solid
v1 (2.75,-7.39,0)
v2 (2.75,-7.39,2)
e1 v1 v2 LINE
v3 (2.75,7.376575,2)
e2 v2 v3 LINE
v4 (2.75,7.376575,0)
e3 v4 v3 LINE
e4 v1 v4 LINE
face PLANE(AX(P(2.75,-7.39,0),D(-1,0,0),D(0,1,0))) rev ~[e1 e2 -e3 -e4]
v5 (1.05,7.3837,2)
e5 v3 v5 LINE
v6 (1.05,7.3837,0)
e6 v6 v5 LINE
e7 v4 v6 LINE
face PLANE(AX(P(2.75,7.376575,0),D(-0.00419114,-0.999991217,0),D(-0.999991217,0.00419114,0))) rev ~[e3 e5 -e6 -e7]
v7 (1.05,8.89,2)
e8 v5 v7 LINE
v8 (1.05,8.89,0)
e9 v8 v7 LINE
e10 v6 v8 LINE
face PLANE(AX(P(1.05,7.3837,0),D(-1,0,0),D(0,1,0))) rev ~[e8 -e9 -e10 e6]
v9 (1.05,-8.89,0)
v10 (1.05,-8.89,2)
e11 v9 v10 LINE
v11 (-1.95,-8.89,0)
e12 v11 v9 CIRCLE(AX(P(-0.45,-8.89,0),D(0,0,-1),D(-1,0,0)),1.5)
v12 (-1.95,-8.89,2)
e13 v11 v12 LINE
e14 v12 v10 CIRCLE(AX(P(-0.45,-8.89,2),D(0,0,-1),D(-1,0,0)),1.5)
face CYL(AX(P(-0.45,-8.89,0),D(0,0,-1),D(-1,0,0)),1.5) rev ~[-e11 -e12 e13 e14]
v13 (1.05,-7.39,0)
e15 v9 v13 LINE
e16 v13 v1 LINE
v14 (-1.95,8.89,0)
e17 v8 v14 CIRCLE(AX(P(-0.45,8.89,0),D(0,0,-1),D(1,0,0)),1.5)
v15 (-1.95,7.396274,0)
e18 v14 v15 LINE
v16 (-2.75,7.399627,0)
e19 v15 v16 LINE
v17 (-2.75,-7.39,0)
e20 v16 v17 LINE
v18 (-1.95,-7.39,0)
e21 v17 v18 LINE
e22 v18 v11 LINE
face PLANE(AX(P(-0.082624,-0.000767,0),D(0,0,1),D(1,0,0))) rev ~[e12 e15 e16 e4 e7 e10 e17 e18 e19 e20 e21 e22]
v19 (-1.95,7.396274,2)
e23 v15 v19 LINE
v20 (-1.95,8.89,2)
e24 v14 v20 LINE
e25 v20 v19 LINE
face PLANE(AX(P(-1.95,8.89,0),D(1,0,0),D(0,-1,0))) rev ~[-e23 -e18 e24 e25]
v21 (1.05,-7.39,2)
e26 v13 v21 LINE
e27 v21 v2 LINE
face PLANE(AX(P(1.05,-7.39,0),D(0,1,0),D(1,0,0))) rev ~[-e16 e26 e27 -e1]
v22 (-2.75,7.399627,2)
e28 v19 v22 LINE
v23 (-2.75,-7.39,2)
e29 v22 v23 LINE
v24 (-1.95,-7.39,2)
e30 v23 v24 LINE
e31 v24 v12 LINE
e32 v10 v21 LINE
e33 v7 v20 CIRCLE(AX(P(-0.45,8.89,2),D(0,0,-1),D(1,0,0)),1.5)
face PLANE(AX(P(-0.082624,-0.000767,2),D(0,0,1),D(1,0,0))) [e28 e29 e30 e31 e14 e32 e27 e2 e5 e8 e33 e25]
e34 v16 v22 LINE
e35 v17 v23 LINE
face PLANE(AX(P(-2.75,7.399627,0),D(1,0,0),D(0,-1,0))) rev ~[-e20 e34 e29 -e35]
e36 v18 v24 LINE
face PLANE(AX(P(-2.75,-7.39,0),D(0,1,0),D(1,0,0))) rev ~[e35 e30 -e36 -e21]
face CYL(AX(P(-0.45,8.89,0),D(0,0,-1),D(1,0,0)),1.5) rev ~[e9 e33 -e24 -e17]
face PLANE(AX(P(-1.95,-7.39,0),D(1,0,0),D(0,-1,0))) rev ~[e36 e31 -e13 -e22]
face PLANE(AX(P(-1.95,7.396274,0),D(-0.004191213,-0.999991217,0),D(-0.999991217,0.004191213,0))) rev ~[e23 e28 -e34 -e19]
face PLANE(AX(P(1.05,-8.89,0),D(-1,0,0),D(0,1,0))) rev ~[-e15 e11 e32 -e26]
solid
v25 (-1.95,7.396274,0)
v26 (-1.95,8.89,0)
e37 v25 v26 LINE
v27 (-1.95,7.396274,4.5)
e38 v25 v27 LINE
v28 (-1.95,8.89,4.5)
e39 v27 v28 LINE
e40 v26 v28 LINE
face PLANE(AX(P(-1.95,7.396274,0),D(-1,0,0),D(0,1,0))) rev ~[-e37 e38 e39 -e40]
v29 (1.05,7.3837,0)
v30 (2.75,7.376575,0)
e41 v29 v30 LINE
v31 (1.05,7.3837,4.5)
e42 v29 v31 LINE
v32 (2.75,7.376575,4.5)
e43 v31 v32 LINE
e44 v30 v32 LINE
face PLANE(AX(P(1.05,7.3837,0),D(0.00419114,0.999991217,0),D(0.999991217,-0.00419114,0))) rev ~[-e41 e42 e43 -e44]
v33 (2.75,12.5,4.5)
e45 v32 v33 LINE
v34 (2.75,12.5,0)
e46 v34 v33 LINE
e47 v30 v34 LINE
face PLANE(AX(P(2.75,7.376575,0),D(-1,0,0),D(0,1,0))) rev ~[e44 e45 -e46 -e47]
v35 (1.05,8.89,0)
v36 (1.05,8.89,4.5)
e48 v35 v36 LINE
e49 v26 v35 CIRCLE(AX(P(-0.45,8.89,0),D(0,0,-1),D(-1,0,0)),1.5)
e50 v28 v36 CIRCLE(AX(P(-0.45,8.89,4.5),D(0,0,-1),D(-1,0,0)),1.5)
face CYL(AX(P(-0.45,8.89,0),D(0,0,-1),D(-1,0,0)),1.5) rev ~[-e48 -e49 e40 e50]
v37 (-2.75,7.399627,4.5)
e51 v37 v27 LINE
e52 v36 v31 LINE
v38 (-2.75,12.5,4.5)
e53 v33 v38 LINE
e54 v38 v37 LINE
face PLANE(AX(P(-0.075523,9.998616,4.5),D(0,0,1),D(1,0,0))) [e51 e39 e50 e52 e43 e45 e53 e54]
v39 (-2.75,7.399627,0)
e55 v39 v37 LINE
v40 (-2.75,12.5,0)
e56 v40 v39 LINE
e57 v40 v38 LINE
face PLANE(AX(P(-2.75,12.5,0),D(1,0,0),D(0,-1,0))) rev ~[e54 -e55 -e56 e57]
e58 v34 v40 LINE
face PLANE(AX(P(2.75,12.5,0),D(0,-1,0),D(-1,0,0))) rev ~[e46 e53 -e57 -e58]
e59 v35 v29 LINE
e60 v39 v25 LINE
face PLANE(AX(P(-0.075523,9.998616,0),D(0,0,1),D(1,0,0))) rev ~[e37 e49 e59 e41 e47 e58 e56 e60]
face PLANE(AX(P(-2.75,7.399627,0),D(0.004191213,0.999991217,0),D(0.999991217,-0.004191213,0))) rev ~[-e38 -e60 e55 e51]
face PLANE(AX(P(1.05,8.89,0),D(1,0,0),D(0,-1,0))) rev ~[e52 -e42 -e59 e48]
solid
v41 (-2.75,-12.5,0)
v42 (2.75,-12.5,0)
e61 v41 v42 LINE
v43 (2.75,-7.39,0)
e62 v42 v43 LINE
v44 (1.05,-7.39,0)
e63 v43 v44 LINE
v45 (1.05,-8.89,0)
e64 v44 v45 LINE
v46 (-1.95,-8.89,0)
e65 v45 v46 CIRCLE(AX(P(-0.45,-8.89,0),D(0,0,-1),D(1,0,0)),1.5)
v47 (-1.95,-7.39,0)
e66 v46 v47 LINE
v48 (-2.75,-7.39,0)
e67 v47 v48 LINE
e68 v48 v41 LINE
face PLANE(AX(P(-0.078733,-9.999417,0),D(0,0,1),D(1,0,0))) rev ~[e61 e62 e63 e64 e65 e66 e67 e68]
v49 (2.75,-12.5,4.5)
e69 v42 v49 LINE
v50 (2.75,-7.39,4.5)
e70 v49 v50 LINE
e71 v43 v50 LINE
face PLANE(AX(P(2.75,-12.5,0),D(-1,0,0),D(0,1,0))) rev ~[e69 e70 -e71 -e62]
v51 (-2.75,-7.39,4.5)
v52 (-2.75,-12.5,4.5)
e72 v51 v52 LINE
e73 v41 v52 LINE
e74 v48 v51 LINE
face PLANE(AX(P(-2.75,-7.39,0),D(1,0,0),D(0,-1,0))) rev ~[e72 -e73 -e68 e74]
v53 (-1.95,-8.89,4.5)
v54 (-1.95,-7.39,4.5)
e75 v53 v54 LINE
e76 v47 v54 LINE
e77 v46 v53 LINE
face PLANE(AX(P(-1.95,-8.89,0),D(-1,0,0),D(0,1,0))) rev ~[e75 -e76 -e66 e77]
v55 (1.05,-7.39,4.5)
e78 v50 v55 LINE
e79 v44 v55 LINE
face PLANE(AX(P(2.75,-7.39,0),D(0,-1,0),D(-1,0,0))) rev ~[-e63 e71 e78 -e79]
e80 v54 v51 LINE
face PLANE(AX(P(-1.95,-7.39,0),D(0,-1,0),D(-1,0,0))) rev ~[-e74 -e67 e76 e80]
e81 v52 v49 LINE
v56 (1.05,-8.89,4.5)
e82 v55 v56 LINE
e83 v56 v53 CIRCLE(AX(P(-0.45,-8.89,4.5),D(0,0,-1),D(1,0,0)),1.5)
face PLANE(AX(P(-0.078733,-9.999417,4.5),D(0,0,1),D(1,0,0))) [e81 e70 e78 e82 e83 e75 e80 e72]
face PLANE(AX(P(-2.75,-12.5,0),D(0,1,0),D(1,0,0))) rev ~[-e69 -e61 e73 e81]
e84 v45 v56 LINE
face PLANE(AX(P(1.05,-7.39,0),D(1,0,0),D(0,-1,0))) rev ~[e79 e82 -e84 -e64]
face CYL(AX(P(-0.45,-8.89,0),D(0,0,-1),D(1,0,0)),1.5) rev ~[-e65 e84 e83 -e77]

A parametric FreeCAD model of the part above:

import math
import FreeCAD as App
import Part
import Sketcher
Q = App.Units.Quantity

doc = App.newDocument("Part")
body = doc.addObject("PartDesign::Body", "Body")
body.AllowCompound = True

# Sketch on XY plane
sketch1 = body.newObject("Sketcher::SketchObject", "Sketch")
sketch1.AttachmentSupport = (doc.getObject("XY_Plane"), [""])
sketch1.MapMode = "FlatFace"
sketch1.addGeometry([
    Part.LineSegment(App.Vector(-2.8, -12.5, 0), App.Vector(2.8, -12.5, 0)),  # 0
    Part.LineSegment(App.Vector(2.8, -12.5, 0), App.Vector(2.8, -7.4, 0)),  # 1
    Part.LineSegment(App.Vector(2.8, -7.4, 0), App.Vector(1.1, -7.4, 0)),  # 2
    Part.LineSegment(App.Vector(1.1, -7.4, 0), App.Vector(1.1, -8.9, 0)),  # 3
    Part.ArcOfCircle(Part.Circle(App.Vector(-0.5, -8.9, 0), App.Vector(0, 0, 1), 1.5), math.radians(180), math.radians(360)),  # 4
    Part.LineSegment(App.Vector(-1.9, -8.9, 0), App.Vector(-1.9, -7.4, 0)),  # 5
    Part.LineSegment(App.Vector(-1.9, -7.4, 0), App.Vector(-2.8, -7.4, 0)),  # 6
    Part.LineSegment(App.Vector(-2.8, -7.4, 0), App.Vector(-2.8, -12.5, 0)),  # 7
    Part.LineSegment(App.Vector(1.1, 7.4, 0), App.Vector(2.8, 7.4, 0)),  # 8
    Part.LineSegment(App.Vector(2.8, 7.4, 0), App.Vector(2.8, 12.5, 0)),  # 9
    Part.LineSegment(App.Vector(2.8, 12.5, 0), App.Vector(-2.8, 12.5, 0)),  # 10
    Part.LineSegment(App.Vector(-2.8, 12.5, 0), App.Vector(-2.8, 7.4, 0)),  # 11
    Part.LineSegment(App.Vector(-2.8, 7.4, 0), App.Vector(-1.9, 7.4, 0)),  # 12
    Part.LineSegment(App.Vector(-1.9, 7.4, 0), App.Vector(-1.9, 8.9, 0)),  # 13
    Part.ArcOfCircle(Part.Circle(App.Vector(-0.5, 8.9, 0), App.Vector(0, 0, 1), 1.5), math.radians(0), math.radians(180)),  # 14
    Part.LineSegment(App.Vector(1.1, 8.9, 0), App.Vector(1.1, 7.4, 0)),  # 15
], False)
sketch1.addConstraint([
    Sketcher.Constraint("Coincident", 0, 2, 1, 1),
    Sketcher.Constraint("Coincident", 1, 2, 2, 1),
    Sketcher.Constraint("Coincident", 2, 2, 3, 1),
    Sketcher.Constraint("Tangent", 3, 2, 4, 2),
    Sketcher.Constraint("Tangent", 4, 1, 5, 1),
    Sketcher.Constraint("Coincident", 5, 2, 6, 1),
    Sketcher.Constraint("Coincident", 6, 2, 7, 1),
    Sketcher.Constraint("Coincident", 7, 2, 0, 1),
    Sketcher.Constraint("Coincident", 8, 2, 9, 1),
    Sketcher.Constraint("Coincident", 9, 2, 10, 1),
    Sketcher.Constraint("Coincident", 10, 2, 11, 1),
    Sketcher.Constraint("Coincident", 11, 2, 12, 1),
    Sketcher.Constraint("Coincident", 12, 2, 13, 1),
    Sketcher.Constraint("Tangent", 13, 2, 14, 2),
    Sketcher.Constraint("Tangent", 14, 1, 15, 1),
    Sketcher.Constraint("Coincident", 15, 2, 8, 1),
    Sketcher.Constraint("Horizontal", 0),
    Sketcher.Constraint("Vertical", 1),
    Sketcher.Constraint("Horizontal", 2),
    Sketcher.Constraint("Vertical", 3),
    Sketcher.Constraint("Vertical", 5),
    Sketcher.Constraint("Horizontal", 6),
    Sketcher.Constraint("Vertical", 7),
    Sketcher.Constraint("Vertical", 9),
    Sketcher.Constraint("Horizontal", 10),
    Sketcher.Constraint("Vertical", 11),
    Sketcher.Constraint("Vertical", 13),
    Sketcher.Constraint("Vertical", 15),
    Sketcher.Constraint("Equal", 4, 14),
    Sketcher.Constraint("Symmetric", 7, 2, 9, 2, -1, 1),
    Sketcher.Constraint("Symmetric", 1, 2, 6, 2, -2),
    Sketcher.Constraint("Symmetric", 4, 3, 14, 3, -1),
    Sketcher.Constraint("Parallel", 8, 12),
    Sketcher.Constraint("Vertical", 7, 2, 10, 2),
    Sketcher.Constraint("Radius", 4, Q("1.5 mm")),
    Sketcher.Constraint("DistanceX", 0, 1, 0, 2, Q("5.5 mm")),
    Sketcher.Constraint("DistanceX", 2, 2, 2, 1, Q("1.7 mm")),
    Sketcher.Constraint("DistanceY", 3, 2, 3, 1, Q("1.5 mm")),
    Sketcher.Constraint("DistanceY", 1, 1, 1, 2, Q("5.11 mm")),
    Sketcher.Constraint("DistanceY", 0, 2, -1, 1, Q("12.5 mm")),
    Sketcher.Constraint("DistanceY", 15, 2, 15, 1, Q("1.5063 mm")),
    Sketcher.Constraint("DistanceY", 8, 2, 12, 2, Q("0.019699 mm")),
    Sketcher.Constraint("DistanceY", 9, 1, 9, 2, Q("5.123425 mm")),
])
pad1 = body.newObject("PartDesign::Pad", "Pad")
pad1.Profile = sketch1
pad1.Length = 4.5
body2 = doc.addObject("PartDesign::Body", "Body001")

# Sketch on XY plane
sketch2 = body2.newObject("Sketcher::SketchObject", "Sketch001")
sketch2.AttachmentSupport = (doc.getObject("XY_Plane001"), [""])
sketch2.MapMode = "FlatFace"
sketch2.addGeometry([
    Part.LineSegment(App.Vector(1.1, -7.4, 0), App.Vector(2.8, -7.4, 0)),  # 0
    Part.LineSegment(App.Vector(2.8, -7.4, 0), App.Vector(2.8, 7.4, 0)),  # 1
    Part.LineSegment(App.Vector(2.8, 7.4, 0), App.Vector(1.1, 7.4, 0)),  # 2
    Part.LineSegment(App.Vector(1.1, 7.4, 0), App.Vector(1.1, 8.9, 0)),  # 3
    Part.ArcOfCircle(Part.Circle(App.Vector(-0.5, 8.9, 0), App.Vector(0, 0, 1), 1.5), math.radians(180), math.radians(360)),  # 4
    Part.LineSegment(App.Vector(-1.9, 8.9, 0), App.Vector(-1.9, 7.4, 0)),  # 5
    Part.LineSegment(App.Vector(-1.9, 7.4, 0), App.Vector(-2.8, 7.4, 0)),  # 6
    Part.LineSegment(App.Vector(-2.8, 7.4, 0), App.Vector(-2.8, -7.4, 0)),  # 7
    Part.LineSegment(App.Vector(-2.8, -7.4, 0), App.Vector(-1.9, -7.4, 0)),  # 8
    Part.LineSegment(App.Vector(-1.9, -7.4, 0), App.Vector(-1.9, -8.9, 0)),  # 9
    Part.ArcOfCircle(Part.Circle(App.Vector(-0.5, -8.9, 0), App.Vector(0, 0, 1), 1.5), math.radians(0), math.radians(180)),  # 10
    Part.LineSegment(App.Vector(1.1, -8.9, 0), App.Vector(1.1, -7.4, 0)),  # 11
], False)
sketch2.addConstraint([
    Sketcher.Constraint("Coincident", 0, 2, 1, 1),
    Sketcher.Constraint("Coincident", 1, 2, 2, 1),
    Sketcher.Constraint("Coincident", 2, 2, 3, 1),
    Sketcher.Constraint("Tangent", 3, 2, 4, 2),
    Sketcher.Constraint("Tangent", 4, 1, 5, 1),
    Sketcher.Constraint("Coincident", 5, 2, 6, 1),
    Sketcher.Constraint("Coincident", 6, 2, 7, 1),
    Sketcher.Constraint("Coincident", 7, 2, 8, 1),
    Sketcher.Constraint("Coincident", 8, 2, 9, 1),
    Sketcher.Constraint("Tangent", 9, 2, 10, 2),
    Sketcher.Constraint("Tangent", 10, 1, 11, 1),
    Sketcher.Constraint("Coincident", 11, 2, 0, 1),
    Sketcher.Constraint("Horizontal", 0),
    Sketcher.Constraint("Vertical", 1),
    Sketcher.Constraint("Vertical", 3),
    Sketcher.Constraint("Vertical", 5),
    Sketcher.Constraint("Vertical", 7),
    Sketcher.Constraint("Horizontal", 8),
    Sketcher.Constraint("Vertical", 9),
    Sketcher.Constraint("Vertical", 11),
    Sketcher.Constraint("Equal", 4, 10),
    Sketcher.Constraint("Symmetric", 0, 2, 7, 2, -2),
    Sketcher.Constraint("Symmetric", 4, 3, 10, 3, -1),
    Sketcher.Constraint("Parallel", 2, 6),
    Sketcher.Constraint("Radius", 4, Q("1.5 mm")),
    Sketcher.Constraint("DistanceX", 0, 1, 0, 2, Q("1.7 mm")),
    Sketcher.Constraint("DistanceX", 8, 1, 8, 2, Q("0.8 mm")),
    Sketcher.Constraint("DistanceY", 9, 2, 9, 1, Q("1.5 mm")),
    Sketcher.Constraint("DistanceY", -1, 1, 4, 3, Q("8.89 mm")),
    Sketcher.Constraint("DistanceY", 3, 1, 3, 2, Q("1.5063 mm")),
    Sketcher.Constraint("DistanceY", 1, 2, 5, 2, Q("0.019699 mm")),
    Sketcher.Constraint("DistanceY", 1, 1, 1, 2, Q("14.766575 mm")),
])
pad2 = body2.newObject("PartDesign::Pad", "Pad001")
pad2.Profile = sketch2
pad2.Length = 2

doc.recompute()
